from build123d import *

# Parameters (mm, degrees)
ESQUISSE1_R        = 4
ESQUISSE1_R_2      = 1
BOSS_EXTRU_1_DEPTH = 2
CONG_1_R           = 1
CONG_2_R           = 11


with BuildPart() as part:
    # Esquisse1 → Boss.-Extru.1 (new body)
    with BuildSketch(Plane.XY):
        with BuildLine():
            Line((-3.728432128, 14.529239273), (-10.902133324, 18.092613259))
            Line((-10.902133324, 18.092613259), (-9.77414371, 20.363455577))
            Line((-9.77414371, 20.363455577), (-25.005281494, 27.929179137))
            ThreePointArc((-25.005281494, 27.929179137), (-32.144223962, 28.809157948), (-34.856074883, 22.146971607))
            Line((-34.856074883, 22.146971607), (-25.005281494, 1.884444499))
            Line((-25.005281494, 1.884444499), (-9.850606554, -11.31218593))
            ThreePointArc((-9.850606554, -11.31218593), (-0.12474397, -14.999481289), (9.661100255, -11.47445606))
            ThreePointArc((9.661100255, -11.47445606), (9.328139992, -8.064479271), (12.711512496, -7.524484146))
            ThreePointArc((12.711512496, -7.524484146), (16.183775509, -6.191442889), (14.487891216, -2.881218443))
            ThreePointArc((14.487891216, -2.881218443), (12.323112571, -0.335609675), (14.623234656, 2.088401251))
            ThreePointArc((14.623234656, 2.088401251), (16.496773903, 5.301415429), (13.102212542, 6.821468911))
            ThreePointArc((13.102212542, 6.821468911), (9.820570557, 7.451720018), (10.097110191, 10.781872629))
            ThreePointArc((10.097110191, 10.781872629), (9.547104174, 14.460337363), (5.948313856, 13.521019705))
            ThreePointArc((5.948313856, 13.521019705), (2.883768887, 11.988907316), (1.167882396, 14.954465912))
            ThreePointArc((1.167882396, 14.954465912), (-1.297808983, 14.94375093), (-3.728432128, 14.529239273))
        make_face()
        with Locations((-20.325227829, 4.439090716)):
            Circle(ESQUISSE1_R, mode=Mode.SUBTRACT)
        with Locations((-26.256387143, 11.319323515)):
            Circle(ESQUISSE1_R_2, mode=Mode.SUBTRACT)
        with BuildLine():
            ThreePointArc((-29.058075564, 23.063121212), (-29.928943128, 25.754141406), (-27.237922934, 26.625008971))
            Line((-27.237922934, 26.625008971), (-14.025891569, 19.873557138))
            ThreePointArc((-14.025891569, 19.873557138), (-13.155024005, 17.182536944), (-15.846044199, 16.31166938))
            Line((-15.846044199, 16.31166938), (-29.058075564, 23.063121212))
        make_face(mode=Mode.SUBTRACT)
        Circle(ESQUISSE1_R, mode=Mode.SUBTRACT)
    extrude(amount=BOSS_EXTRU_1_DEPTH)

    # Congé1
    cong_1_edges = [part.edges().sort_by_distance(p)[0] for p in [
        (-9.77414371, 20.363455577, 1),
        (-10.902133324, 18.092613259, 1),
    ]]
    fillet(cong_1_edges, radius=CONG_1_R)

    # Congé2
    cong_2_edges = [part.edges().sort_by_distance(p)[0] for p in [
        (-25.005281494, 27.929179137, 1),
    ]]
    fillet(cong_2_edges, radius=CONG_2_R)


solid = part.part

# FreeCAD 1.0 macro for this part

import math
import FreeCAD as App
import Part
import Sketcher
from FreeCAD import Vector
Q = App.Units.Quantity


def edges_at(feature, points):
    """Names of the edges that pass closest to the given points."""
    edges = feature.Shape.Edges
    near = lambda p: min(range(len(edges)), key=lambda i: edges[i].distToShape(Part.Vertex(*p))[0])
    return sorted({f"Edge{near(p) + 1}" for p in points})

doc = App.newDocument("Part")
params = doc.addObject("Spreadsheet::Sheet", "Params")
for row, (alias, value) in enumerate([
    ("sketch1_diameter", "2 mm"),
    ("sketch1_diameter2", "8 mm"),
    ("sketch1_radius", "15 mm"),
    ("sketch1_radius2", "2 mm"),
    ("sketch1_radius3", "2.5 mm"),
    ("pad1_length", "2 mm"),
    ("fillet_radius", "1 mm"),
    ("fillet2_radius", "11 mm"),
], start=1):
    params.set(f"A{row}", alias)
    params.set(f"B{row}", "=" + value)
    params.setAlias(f"B{row}", alias)

body = doc.addObject("PartDesign::Body", "Body")

# Sketch on XY plane
sketch1 = body.newObject("Sketcher::SketchObject", "Sketch")
sketch1.AttachmentSupport = (doc.getObject("XY_Plane"), [""])
sketch1.MapMode = "FlatFace"
sketch1.addGeometry(Part.LineSegment(Vector(-3.7, 14.5, 0), Vector(-10.9, 18.1, 0)), False)
sketch1.addGeometry(Part.LineSegment(Vector(-10.9, 18.1, 0), Vector(-9.8, 20.4, 0)), False)
sketch1.addGeometry(Part.LineSegment(Vector(-9.8, 20.4, 0), Vector(-25, 27.9, 0)), False)
sketch1.addGeometry(Part.ArcOfCircle(Part.Circle(Vector(-29.1, 23.7, 0), Vector(0, 0, 1), 5.9), math.radians(46), math.radians(195)), False)
sketch1.addGeometry(Part.LineSegment(Vector(-34.9, 22.1, 0), Vector(-25, 1.9, 0)), False)
sketch1.addGeometry(Part.LineSegment(Vector(-25, 1.9, 0), Vector(-9.9, -11.3, 0)), False)
sketch1.addGeometry(Part.ArcOfCircle(Part.Circle(Vector(0, 0, 0), Vector(0, 0, 1), 15), math.radians(-131), math.radians(-50)), False)
sketch1.addGeometry(Part.ArcOfCircle(Part.Circle(Vector(11.3, -9.6, 0), Vector(0, 0, 1), 2.5), math.radians(56), math.radians(229)), False)
sketch1.addGeometry(Part.ArcOfCircle(Part.Circle(Vector(13.8, -5.3, 0), Vector(0, 0, 1), 2.5), math.radians(-117), math.radians(75)), False)
sketch1.addGeometry(Part.ArcOfCircle(Part.Circle(Vector(14.8, -0.4, 0), Vector(0, 0, 1), 2.5), math.radians(95), math.radians(262)), False)
sketch1.addGeometry(Part.ArcOfCircle(Part.Circle(Vector(14.1, 4.5, 0), Vector(0, 0, 1), 2.5), math.radians(-78), math.radians(114)), False)
sketch1.addGeometry(Part.ArcOfCircle(Part.Circle(Vector(11.8, 9, 0), Vector(0, 0, 1), 2.5), math.radians(133), math.radians(301)), False)
sketch1.addGeometry(Part.ArcOfCircle(Part.Circle(Vector(8.2, 12.4, 0), Vector(0, 0, 1), 2.5), math.radians(-40), math.radians(153)), False)
sketch1.addGeometry(Part.ArcOfCircle(Part.Circle(Vector(3.6, 14.4, 0), Vector(0, 0, 1), 2.5), math.radians(167), math.radians(340)), False)
sketch1.addGeometry(Part.ArcOfCircle(Part.Circle(Vector(0, 0, 0), Vector(0, 0, 1), 15), math.radians(85.53), math.radians(104.39)), False)
sketch1.addGeometry(Part.Circle(Vector(-26.3, 11.3, 0), Vector(0, 0, 1), 1), False)
sketch1.addGeometry(Part.Circle(Vector(-20.3, 4.4, 0), Vector(0, 0, 1), 4), False)
sketch1.addGeometry(Part.Circle(Vector(0, 0, 0), Vector(0, 0, 1), 4), False)
sketch1.addGeometry(Part.LineSegment(Vector(-15.8, 16.3, 0), Vector(-29.1, 23.1, 0)), False)
sketch1.addGeometry(Part.ArcOfCircle(Part.Circle(Vector(-28.1, 24.8, 0), Vector(0, 0, 1), 2), math.radians(63), math.radians(243)), False)
sketch1.addGeometry(Part.LineSegment(Vector(-27.2, 26.6, 0), Vector(-14, 19.9, 0)), False)
sketch1.addGeometry(Part.ArcOfCircle(Part.Circle(Vector(-14.9, 18.1, 0), Vector(0, 0, 1), 2), math.radians(-117), math.radians(63)), False)
sketch1.addConstraint(Sketcher.Constraint("Coincident", 0, 2, 1, 1))
sketch1.addConstraint(Sketcher.Constraint("Coincident", 1, 2, 2, 1))
sketch1.addConstraint(Sketcher.Constraint("Coincident", 2, 2, 3, 1))
sketch1.addConstraint(Sketcher.Constraint("Coincident", 3, 2, 4, 1))
sketch1.addConstraint(Sketcher.Constraint("Coincident", 4, 2, 5, 1))
sketch1.addConstraint(Sketcher.Constraint("Tangent", 5, 2, 6, 1))
sketch1.addConstraint(Sketcher.Constraint("Coincident", 6, 2, 7, 2))
sketch1.addConstraint(Sketcher.Constraint("Coincident", 7, 1, 8, 1))
sketch1.addConstraint(Sketcher.Constraint("Coincident", 8, 2, 9, 2))
sketch1.addConstraint(Sketcher.Constraint("Coincident", 9, 1, 10, 1))
sketch1.addConstraint(Sketcher.Constraint("Coincident", 10, 2, 11, 2))
sketch1.addConstraint(Sketcher.Constraint("Coincident", 11, 1, 12, 1))
sketch1.addConstraint(Sketcher.Constraint("Coincident", 12, 2, 13, 2))
sketch1.addConstraint(Sketcher.Constraint("Coincident", 13, 1, 14, 1))
sketch1.addConstraint(Sketcher.Constraint("Coincident", 14, 2, 0, 1))
sketch1.addConstraint(Sketcher.Constraint("Tangent", 18, 2, 19, 2))
sketch1.addConstraint(Sketcher.Constraint("Tangent", 19, 1, 20, 1))
sketch1.addConstraint(Sketcher.Constraint("Tangent", 20, 2, 21, 2))
sketch1.addConstraint(Sketcher.Constraint("Tangent", 21, 1, 18, 1))
sketch1.addConstraint(Sketcher.Constraint("Coincident", 6, 3, -1, 1))
sketch1.addConstraint(Sketcher.Constraint("Coincident", 14, 3, -1, 1))
sketch1.addConstraint(Sketcher.Constraint("Coincident", 17, 3, -1, 1))
sketch1.addConstraint(Sketcher.Constraint("Equal", 7, 8))
sketch1.addConstraint(Sketcher.Constraint("Equal", 8, 9))
sketch1.addConstraint(Sketcher.Constraint("Equal", 9, 10))
sketch1.addConstraint(Sketcher.Constraint("Equal", 10, 11))
sketch1.addConstraint(Sketcher.Constraint("Equal", 11, 12))
sketch1.addConstraint(Sketcher.Constraint("Equal", 12, 13))
sketch1.addConstraint(Sketcher.Constraint("Equal", 6, 14))
sketch1.addConstraint(Sketcher.Constraint("Equal", 16, 17))
sketch1.addConstraint(Sketcher.Constraint("Equal", 19, 21))
sketch1.addConstraint(Sketcher.Constraint("Perpendicular", 0, 1))
sketch1.addConstraint(Sketcher.Constraint("Perpendicular", 1, 2))
sketch1.addConstraint(Sketcher.Constraint("Horizontal", 21, 3, 0, 2))
sketch1.addConstraint(Sketcher.Constraint("Vertical", 2, 2, 4, 2))
sketch1.addConstraint(Sketcher.Constraint("Diameter", 15, Q("2 mm")))
sketch1.addConstraint(Sketcher.Constraint("Diameter", 16, Q("8 mm")))
sketch1.addConstraint(Sketcher.Constraint("Radius", 6, Q("15 mm")))
sketch1.addConstraint(Sketcher.Constraint("Radius", 19, Q("2 mm")))
sketch1.addConstraint(Sketcher.Constraint("Radius", 7, Q("2.5 mm")))
sketch1.addConstraint(Sketcher.Constraint("Radius", 3, Q("5.91607 mm")))
sketch1.addConstraint(Sketcher.Constraint("DistanceX", 19, 3, -1, 1, Q("28.147999 mm")))
sketch1.addConstraint(Sketcher.Constraint("DistanceX", 3, 2, 18, 2, Q("5.797999 mm")))
sketch1.addConstraint(Sketcher.Constraint("DistanceX", -1, 1, 7, 3, Q("11.306798 mm")))
sketch1.addConstraint(Sketcher.Constraint("DistanceX", -1, 1, 6, 2, Q("9.6611 mm")))
sketch1.addConstraint(Sketcher.Constraint("DistanceY", -1, 1, 9, 1, Q("2.088401 mm")))
sketch1.addConstraint(Sketcher.Constraint("DistanceY", 9, 3, 12, 3, Q("12.777701 mm")))
sketch1.addConstraint(Sketcher.Constraint("DistanceY", 6, 2, 8, 3, Q("6.176301 mm")))
sketch1.addConstraint(Sketcher.Constraint("DistanceX", 12, 2, 10, 2, Q("7.153899 mm")))
sketch1.addConstraint(Sketcher.Constraint("DistanceY", 13, 3, 13, 1, Q("0.570899 mm")))
sketch1.addConstraint(Sketcher.Constraint("DistanceX", 0, 2, 14, 2, Q("7.173701 mm")))
sketch1.addConstraint(Sketcher.Constraint("DistanceX", 3, 3, 19, 1, Q("1.911498 mm")))
sketch1.addConstraint(Sketcher.Constraint("DistanceY", 20, 2, 1, 2, Q("0.489898 mm")))
sketch1.addConstraint(Sketcher.Constraint("DistanceX", 21, 1, 1, 2, Q("6.0719 mm")))
sketch1.addConstraint(Sketcher.Constraint("Distance", 0, Q("8.00997 mm")))
sketch1.addConstraint(Sketcher.Constraint("Distance", 4, Q("22.530161 mm")))
sketch1.addConstraint(Sketcher.Constraint("Distance", 18, Q("14.837111 mm")))
sketch1.addConstraint(Sketcher.Constraint("DistanceX", 3, 3, -1, 1, Q("29.149421 mm")))
sketch1.addConstraint(Sketcher.Constraint("DistanceY", 9, 3, -1, 1, Q("0.40367 mm")))
sketch1.addConstraint(Sketcher.Constraint("DistanceY", -1, 1, 10, 3, Q("4.536539 mm")))
sketch1.addConstraint(Sketcher.Constraint("DistanceX", -1, 1, 11, 3, Q("11.812139 mm")))
sketch1.addConstraint(Sketcher.Constraint("DistanceX", -1, 1, 12, 3, Q("8.169669 mm")))
sketch1.addConstraint(Sketcher.Constraint("DistanceY", -1, 1, 16, 3, Q("4.439091 mm")))
sketch1.addConstraint(Sketcher.Constraint("DistanceX", 2, 2, -1, 1, Q("25.005281 mm")))
sketch1.addConstraint(Sketcher.Constraint("DistanceX", -1, 1, 8, 2, Q("14.487891 mm")))
sketch1.addConstraint(Sketcher.Constraint("DistanceY", 8, 2, -1, 1, Q("2.881218 mm")))
sketch1.addConstraint(Sketcher.Constraint("DistanceY", -1, 1, 10, 2, Q("6.821469 mm")))
sketch1.addConstraint(Sketcher.Constraint("DistanceX", 15, 3, 13, 3, Q("29.858212 mm")))
sketch1.addConstraint(Sketcher.Constraint("DistanceY", 15, 3, 12, 3, Q("1.054708 mm")))
sketch1.addConstraint(Sketcher.Constraint("DistanceX", 15, 3, 16, 3, Q("5.931159 mm")))
sketch1.setExpression("Constraints[35]", "Params.sketch1_diameter")
sketch1.setExpression("Constraints[36]", "Params.sketch1_diameter2")
sketch1.setExpression("Constraints[37]", "Params.sketch1_radius")
sketch1.setExpression("Constraints[38]", "Params.sketch1_radius2")
sketch1.setExpression("Constraints[39]", "Params.sketch1_radius3")
pad1 = body.newObject("PartDesign::Pad", "Pad")
pad1.Profile = sketch1
pad1.setExpression("Length", "Params.pad1_length")
doc.recompute()

fillet = body.newObject("PartDesign::Fillet", "Fillet")
fillet.Base = (pad1, edges_at(pad1, [(-9.774, 20.363, 1), (-10.902, 18.093, 1)]))
fillet.setExpression("Radius", "Params.fillet_radius")
doc.recompute()

fillet2 = body.newObject("PartDesign::Fillet", "Fillet001")
fillet2.Base = (fillet, edges_at(fillet, [(-25.005, 27.929, 1)]))
fillet2.setExpression("Radius", "Params.fillet2_radius")

doc.recompute()
